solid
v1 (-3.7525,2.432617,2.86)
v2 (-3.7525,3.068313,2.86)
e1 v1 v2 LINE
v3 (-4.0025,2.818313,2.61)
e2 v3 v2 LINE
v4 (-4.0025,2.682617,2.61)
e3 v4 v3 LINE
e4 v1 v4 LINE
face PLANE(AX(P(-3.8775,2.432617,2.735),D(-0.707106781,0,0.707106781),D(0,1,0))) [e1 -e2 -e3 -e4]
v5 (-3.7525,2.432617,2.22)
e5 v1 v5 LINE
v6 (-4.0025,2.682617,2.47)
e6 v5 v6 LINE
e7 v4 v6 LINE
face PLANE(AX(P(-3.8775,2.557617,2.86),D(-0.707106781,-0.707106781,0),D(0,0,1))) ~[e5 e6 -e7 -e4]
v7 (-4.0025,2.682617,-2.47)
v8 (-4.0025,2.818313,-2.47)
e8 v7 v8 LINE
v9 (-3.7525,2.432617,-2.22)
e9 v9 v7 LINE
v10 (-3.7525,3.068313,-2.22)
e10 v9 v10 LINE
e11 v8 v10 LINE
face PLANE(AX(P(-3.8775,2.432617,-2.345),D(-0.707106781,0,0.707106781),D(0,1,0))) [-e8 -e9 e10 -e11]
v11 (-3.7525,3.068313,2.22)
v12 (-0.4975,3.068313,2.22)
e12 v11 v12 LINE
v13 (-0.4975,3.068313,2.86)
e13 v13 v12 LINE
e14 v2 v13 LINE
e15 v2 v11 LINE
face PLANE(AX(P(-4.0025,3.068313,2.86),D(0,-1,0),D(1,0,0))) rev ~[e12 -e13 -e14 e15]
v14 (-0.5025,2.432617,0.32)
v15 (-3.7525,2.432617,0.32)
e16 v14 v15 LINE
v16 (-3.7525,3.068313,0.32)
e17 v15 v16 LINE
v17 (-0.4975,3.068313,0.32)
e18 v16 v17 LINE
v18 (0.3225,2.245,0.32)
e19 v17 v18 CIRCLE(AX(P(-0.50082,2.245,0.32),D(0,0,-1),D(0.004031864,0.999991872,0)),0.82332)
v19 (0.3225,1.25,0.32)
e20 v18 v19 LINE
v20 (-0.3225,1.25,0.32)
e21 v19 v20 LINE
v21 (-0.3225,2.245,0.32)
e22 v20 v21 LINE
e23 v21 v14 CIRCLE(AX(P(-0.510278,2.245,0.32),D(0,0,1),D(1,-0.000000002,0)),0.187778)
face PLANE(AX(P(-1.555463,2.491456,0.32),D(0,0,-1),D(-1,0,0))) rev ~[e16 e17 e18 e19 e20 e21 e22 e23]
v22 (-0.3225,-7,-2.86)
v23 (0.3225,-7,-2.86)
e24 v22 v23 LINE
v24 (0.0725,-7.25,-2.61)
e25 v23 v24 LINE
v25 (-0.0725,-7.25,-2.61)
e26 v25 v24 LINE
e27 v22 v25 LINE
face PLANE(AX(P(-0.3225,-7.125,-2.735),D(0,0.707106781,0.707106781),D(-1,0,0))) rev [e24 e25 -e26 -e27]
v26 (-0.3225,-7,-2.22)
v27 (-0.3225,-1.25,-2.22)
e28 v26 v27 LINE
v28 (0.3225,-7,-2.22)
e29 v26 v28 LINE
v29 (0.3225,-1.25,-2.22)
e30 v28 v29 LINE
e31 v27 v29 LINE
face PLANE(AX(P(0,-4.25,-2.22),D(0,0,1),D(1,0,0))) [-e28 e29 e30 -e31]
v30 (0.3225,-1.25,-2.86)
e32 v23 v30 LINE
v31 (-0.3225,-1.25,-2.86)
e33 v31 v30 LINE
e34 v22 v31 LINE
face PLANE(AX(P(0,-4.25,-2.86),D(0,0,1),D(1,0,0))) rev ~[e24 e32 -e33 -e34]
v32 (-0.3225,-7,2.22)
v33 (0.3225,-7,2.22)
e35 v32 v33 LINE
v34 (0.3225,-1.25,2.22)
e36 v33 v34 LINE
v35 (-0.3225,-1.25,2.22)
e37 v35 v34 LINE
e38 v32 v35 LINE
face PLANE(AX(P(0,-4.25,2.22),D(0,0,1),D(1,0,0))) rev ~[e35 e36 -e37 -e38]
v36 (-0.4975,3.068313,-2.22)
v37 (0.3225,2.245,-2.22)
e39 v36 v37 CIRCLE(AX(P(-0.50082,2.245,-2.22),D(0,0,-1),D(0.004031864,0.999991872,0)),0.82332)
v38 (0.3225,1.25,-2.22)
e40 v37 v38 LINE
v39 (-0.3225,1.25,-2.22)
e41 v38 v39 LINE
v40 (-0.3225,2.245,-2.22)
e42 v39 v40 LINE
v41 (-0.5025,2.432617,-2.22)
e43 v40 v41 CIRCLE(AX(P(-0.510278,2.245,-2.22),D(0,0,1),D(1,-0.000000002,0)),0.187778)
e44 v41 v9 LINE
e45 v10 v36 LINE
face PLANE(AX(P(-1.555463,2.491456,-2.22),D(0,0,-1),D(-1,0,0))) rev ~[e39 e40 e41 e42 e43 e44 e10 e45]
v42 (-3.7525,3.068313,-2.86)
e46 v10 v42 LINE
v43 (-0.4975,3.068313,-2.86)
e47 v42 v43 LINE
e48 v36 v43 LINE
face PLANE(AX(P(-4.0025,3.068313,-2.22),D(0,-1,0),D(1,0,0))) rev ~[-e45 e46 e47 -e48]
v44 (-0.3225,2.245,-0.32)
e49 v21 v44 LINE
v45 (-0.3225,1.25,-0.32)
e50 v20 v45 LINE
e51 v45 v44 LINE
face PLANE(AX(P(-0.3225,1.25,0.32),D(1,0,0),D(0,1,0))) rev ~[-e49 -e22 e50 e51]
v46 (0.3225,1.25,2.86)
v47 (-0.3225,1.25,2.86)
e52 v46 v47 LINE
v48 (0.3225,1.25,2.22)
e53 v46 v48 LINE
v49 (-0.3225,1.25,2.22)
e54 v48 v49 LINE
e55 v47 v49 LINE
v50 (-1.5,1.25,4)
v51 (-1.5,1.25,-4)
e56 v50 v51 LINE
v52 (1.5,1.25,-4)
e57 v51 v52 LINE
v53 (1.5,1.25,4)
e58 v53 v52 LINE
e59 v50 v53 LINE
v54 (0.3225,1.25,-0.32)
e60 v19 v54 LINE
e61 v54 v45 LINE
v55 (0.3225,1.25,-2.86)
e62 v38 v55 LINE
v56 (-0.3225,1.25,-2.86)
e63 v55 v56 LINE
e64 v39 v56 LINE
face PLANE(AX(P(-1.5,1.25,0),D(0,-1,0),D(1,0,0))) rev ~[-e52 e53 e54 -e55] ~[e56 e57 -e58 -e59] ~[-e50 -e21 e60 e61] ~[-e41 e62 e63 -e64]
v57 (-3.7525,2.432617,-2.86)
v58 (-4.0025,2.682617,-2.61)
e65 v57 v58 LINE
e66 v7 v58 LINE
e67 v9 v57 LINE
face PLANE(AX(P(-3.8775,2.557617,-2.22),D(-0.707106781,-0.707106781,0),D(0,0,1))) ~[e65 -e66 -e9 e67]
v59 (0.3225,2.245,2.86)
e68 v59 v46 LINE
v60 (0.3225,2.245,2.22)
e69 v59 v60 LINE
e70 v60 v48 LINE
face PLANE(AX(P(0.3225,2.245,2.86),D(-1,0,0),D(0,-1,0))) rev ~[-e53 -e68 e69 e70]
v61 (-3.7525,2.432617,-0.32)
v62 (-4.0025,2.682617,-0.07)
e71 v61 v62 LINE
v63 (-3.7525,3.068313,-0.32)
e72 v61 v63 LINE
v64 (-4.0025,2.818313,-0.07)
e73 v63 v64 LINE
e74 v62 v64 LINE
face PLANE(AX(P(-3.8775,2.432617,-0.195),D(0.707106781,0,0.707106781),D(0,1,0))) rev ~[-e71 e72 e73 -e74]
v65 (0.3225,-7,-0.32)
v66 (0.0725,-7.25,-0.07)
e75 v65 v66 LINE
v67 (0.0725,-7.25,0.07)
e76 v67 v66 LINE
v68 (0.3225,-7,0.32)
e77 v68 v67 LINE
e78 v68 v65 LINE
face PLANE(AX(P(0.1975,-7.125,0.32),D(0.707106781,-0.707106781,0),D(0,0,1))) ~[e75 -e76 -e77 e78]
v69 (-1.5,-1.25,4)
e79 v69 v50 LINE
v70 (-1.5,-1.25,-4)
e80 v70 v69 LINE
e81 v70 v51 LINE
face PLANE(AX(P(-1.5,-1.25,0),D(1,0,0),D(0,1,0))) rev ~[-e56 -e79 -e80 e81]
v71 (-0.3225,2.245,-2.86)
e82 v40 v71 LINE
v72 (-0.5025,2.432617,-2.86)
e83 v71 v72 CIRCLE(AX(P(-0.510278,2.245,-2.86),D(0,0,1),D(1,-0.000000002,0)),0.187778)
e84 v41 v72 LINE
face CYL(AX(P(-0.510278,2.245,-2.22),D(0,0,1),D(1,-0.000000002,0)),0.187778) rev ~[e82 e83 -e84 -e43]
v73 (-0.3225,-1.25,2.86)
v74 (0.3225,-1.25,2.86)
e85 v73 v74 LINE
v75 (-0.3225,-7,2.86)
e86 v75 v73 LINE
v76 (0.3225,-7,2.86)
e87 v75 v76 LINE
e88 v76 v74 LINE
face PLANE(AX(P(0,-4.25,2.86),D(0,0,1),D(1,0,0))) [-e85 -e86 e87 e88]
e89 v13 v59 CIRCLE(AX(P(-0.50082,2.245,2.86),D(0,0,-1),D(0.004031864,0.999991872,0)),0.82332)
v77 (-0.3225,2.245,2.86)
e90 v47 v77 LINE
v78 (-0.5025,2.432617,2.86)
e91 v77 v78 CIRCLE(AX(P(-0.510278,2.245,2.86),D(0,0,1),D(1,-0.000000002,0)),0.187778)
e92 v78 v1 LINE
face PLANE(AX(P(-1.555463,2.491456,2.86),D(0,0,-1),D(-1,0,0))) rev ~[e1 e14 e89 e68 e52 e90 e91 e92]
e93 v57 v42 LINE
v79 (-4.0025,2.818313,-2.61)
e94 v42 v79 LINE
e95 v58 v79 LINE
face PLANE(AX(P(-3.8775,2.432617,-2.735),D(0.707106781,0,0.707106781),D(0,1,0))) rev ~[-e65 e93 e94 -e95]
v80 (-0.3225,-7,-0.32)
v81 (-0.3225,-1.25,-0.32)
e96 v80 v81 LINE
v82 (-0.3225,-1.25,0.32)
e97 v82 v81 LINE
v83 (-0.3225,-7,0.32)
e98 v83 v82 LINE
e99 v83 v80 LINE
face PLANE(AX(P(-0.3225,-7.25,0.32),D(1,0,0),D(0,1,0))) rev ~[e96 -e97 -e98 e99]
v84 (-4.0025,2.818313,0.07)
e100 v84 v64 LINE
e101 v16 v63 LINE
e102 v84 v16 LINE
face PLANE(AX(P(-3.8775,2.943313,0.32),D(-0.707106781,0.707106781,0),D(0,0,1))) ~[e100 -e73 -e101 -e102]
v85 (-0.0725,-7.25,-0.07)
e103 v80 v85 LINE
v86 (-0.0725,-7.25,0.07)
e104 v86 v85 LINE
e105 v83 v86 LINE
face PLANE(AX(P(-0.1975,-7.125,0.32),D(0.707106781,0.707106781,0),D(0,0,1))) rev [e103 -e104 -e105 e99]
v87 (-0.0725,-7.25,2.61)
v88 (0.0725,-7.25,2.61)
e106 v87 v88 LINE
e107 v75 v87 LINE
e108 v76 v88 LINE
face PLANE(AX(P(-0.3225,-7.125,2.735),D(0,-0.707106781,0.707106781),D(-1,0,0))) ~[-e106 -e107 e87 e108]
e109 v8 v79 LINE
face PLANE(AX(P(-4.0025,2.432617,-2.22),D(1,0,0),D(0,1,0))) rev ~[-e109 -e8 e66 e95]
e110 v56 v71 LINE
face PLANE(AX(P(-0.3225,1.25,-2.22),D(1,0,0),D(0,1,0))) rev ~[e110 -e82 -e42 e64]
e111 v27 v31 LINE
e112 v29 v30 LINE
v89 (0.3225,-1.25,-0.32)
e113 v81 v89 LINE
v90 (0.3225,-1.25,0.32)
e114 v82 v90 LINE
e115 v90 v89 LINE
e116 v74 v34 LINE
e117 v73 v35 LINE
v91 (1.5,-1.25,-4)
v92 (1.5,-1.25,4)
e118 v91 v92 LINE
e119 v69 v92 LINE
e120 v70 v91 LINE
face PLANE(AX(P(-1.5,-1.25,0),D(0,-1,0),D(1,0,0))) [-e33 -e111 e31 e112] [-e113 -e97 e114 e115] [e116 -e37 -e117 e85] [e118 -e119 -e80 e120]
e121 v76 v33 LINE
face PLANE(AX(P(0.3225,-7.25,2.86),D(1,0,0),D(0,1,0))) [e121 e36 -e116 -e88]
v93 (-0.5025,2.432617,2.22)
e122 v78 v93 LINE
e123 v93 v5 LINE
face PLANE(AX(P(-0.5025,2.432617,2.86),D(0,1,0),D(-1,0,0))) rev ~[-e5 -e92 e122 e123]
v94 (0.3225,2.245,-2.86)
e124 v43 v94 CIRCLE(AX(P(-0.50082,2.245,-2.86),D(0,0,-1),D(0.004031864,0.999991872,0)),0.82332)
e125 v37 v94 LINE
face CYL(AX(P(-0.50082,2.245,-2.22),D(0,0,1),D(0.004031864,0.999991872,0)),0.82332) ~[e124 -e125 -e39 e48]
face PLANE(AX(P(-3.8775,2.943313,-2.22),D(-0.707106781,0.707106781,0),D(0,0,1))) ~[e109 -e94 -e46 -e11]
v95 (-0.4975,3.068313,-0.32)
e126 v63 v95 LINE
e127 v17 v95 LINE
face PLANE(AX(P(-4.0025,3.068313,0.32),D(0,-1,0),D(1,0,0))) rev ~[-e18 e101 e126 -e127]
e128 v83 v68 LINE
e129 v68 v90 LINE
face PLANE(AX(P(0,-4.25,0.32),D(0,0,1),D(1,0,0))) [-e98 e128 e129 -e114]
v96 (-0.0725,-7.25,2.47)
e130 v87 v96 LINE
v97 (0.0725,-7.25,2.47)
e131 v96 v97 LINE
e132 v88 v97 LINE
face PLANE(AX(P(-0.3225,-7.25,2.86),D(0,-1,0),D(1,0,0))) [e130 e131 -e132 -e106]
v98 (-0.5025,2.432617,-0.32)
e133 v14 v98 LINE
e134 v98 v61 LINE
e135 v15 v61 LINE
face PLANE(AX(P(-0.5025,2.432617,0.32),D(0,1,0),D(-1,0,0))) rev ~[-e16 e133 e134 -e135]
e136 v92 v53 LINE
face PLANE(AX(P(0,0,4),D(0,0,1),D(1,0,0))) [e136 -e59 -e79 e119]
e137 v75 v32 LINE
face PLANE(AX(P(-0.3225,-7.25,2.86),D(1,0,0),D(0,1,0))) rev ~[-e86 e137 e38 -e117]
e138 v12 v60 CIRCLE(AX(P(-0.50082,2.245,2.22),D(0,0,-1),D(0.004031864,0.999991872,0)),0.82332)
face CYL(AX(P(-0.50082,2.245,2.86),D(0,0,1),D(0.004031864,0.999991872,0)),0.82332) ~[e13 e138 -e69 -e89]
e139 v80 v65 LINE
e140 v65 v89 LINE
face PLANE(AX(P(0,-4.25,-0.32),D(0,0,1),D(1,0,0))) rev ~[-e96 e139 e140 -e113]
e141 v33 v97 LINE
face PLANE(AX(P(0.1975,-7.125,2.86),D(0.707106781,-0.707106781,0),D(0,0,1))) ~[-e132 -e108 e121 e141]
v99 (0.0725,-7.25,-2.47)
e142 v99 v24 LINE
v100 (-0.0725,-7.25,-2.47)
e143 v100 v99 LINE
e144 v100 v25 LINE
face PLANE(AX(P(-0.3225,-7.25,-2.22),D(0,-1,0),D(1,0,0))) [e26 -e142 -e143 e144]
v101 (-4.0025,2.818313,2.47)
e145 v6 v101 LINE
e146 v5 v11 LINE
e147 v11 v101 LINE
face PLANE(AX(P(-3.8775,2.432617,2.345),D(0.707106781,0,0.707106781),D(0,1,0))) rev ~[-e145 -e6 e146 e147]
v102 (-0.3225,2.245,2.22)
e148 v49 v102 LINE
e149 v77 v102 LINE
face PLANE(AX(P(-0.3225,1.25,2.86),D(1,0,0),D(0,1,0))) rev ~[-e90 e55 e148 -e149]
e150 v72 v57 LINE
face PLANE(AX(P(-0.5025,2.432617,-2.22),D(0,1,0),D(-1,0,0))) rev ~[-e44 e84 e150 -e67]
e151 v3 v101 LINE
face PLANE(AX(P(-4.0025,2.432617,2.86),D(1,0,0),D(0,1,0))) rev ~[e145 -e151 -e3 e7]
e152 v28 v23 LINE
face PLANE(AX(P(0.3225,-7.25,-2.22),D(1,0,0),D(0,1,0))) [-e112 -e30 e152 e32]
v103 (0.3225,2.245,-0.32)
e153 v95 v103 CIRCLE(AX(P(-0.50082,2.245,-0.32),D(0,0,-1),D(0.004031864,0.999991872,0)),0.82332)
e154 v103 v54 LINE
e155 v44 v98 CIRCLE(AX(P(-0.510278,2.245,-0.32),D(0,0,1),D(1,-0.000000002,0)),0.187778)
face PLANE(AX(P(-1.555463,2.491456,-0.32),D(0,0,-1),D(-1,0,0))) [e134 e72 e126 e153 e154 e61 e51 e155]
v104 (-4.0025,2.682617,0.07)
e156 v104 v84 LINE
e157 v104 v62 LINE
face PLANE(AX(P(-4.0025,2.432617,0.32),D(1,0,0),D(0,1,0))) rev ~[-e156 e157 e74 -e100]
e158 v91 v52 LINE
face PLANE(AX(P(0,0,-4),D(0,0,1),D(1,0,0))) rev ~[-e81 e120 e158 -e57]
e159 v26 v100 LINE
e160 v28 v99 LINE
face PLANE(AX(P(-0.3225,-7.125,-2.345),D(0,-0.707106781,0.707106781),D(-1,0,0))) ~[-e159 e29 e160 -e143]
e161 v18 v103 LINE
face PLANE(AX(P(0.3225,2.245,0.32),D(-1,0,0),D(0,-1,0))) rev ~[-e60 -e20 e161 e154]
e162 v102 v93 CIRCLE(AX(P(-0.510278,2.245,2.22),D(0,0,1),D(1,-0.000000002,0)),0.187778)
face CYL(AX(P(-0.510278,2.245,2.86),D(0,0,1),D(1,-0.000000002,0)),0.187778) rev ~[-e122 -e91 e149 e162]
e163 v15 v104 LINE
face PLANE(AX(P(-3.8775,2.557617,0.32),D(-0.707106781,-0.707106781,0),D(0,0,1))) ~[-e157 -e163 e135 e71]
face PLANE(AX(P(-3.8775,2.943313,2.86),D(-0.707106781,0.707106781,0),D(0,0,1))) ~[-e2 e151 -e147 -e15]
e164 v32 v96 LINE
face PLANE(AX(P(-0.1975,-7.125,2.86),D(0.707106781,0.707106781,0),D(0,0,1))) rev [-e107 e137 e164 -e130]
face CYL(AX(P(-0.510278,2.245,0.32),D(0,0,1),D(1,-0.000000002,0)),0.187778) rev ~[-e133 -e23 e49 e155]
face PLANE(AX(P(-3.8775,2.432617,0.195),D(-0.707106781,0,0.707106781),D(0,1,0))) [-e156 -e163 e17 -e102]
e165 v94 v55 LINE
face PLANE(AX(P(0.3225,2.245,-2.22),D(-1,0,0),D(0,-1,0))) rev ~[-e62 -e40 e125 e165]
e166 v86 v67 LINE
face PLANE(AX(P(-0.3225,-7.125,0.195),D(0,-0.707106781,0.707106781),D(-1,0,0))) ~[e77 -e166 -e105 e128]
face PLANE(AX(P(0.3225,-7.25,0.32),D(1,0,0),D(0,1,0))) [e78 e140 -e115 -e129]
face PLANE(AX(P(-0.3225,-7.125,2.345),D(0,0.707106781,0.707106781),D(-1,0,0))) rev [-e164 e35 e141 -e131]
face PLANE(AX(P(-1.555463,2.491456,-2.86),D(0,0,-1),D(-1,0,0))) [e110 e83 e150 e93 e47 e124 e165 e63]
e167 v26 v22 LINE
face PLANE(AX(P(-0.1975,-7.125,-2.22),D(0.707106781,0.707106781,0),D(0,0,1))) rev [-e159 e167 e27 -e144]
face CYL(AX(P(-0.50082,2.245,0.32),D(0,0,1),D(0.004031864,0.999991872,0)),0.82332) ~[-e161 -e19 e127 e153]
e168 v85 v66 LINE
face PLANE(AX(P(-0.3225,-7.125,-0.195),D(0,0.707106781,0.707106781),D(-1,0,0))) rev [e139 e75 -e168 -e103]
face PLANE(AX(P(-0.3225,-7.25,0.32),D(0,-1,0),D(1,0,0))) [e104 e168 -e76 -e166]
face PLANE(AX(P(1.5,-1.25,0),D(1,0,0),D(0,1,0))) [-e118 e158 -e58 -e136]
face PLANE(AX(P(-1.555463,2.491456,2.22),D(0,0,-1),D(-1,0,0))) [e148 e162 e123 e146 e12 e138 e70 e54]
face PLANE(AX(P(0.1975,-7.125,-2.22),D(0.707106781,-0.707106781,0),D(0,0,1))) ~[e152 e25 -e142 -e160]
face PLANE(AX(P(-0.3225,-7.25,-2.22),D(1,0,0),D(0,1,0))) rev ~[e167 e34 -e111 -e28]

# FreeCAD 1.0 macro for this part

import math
import FreeCAD as App
import Part
import Sketcher
Q = App.Units.Quantity


def edges_at(feature, points):
    """Names of the edges that pass closest to the given points."""
    edges = feature.Shape.Edges
    near = lambda p: min(range(len(edges)), key=lambda i: edges[i].distToShape(Part.Vertex(*p))[0])
    return sorted({f"Edge{near(p) + 1}" for p in points})

doc = App.newDocument("Part")
body = doc.addObject("PartDesign::Body", "Body")

sketch1 = body.newObject("Sketcher::SketchObject", "Sketch")
sketch1.AttachmentSupport = (doc.getObject("XY_Plane"), [""])
sketch1.MapMode = "FlatFace"
sketch1.addGeometry(Part.LineSegment(App.Vector(-1.5, 1.25, 0), App.Vector(-1.5, -1.25, 0)), False)
sketch1.addGeometry(Part.LineSegment(App.Vector(-1.5, -1.25, 0), App.Vector(1.5, -1.25, 0)), False)
sketch1.addGeometry(Part.LineSegment(App.Vector(1.5, -1.25, 0), App.Vector(1.5, 1.25, 0)), False)
sketch1.addGeometry(Part.LineSegment(App.Vector(1.5, 1.25, 0), App.Vector(-1.5, 1.25, 0)), False)
sketch1.addConstraint(Sketcher.Constraint("Coincident", 0, 2, 1, 1))
sketch1.addConstraint(Sketcher.Constraint("Coincident", 1, 2, 2, 1))
sketch1.addConstraint(Sketcher.Constraint("Coincident", 2, 2, 3, 1))
sketch1.addConstraint(Sketcher.Constraint("Coincident", 3, 2, 0, 1))
sketch1.addConstraint(Sketcher.Constraint("Vertical", 0))
sketch1.addConstraint(Sketcher.Constraint("Horizontal", 1))
sketch1.addConstraint(Sketcher.Constraint("Vertical", 2))
sketch1.addConstraint(Sketcher.Constraint("Horizontal", 3))
sketch1.addConstraint(Sketcher.Constraint("Symmetric", 0, 2, 2, 2, -1, 1))
sketch1.addConstraint(Sketcher.Constraint("DistanceX", 1, 1, 1, 2, Q("3 mm")))
sketch1.addConstraint(Sketcher.Constraint("DistanceY", 0, 2, 0, 1, Q("2.5 mm")))
pad1 = body.newObject("PartDesign::Pad", "Pad")
pad1.Profile = sketch1
pad1.Length = 8
pad1.Midplane = True

sketch2 = body.newObject("Sketcher::SketchObject", "Sketch001")
sketch2.AttachmentSupport = (doc.getObject("XY_Plane"), [""])
sketch2.MapMode = "FlatFace"
sketch2.AttachmentOffset = App.Placement(App.Vector(0, 0, 2.86), App.Rotation())
sketch2.addGeometry(Part.LineSegment(App.Vector(-0.3225, 2.245, 0), App.Vector(-0.3225, 1.25, 0)), False)
sketch2.addGeometry(Part.LineSegment(App.Vector(-0.3225, 1.25, 0), App.Vector(0.3225, 1.25, 0)), False)
sketch2.addGeometry(Part.LineSegment(App.Vector(0.3225, 1.25, 0), App.Vector(0.3225, 2.245, 0)), False)
sketch2.addGeometry(Part.ArcOfCircle(Part.Circle(App.Vector(-0.50082, 2.245, 0), App.Vector(0, 0, 1), 0.82332), math.radians(0), math.radians(89.768991)), False)
sketch2.addGeometry(Part.LineSegment(App.Vector(-0.4975, 3.068313, 0), App.Vector(-4.0025, 3.068313, 0)), False)
sketch2.addGeometry(Part.LineSegment(App.Vector(-4.0025, 3.068313, 0), App.Vector(-4.0025, 2.432617, 0)), False)
sketch2.addGeometry(Part.LineSegment(App.Vector(-4.0025, 2.432617, 0), App.Vector(-0.5025, 2.432617, 0)), False)
sketch2.addGeometry(Part.ArcOfCircle(Part.Circle(App.Vector(-0.510278, 2.245, 0), App.Vector(0, 0, 1), 0.187778), math.radians(0), math.radians(87.626123)), False)
sketch2.addGeometry(Part.LineSegment(App.Vector(-0.3225, -1.25, 0), App.Vector(-0.3225, -7.25, 0)), False)
sketch2.addGeometry(Part.LineSegment(App.Vector(-0.3225, -7.25, 0), App.Vector(0.3225, -7.25, 0)), False)
sketch2.addGeometry(Part.LineSegment(App.Vector(0.3225, -7.25, 0), App.Vector(0.3225, -1.25, 0)), False)
sketch2.addGeometry(Part.LineSegment(App.Vector(0.3225, -1.25, 0), App.Vector(-0.3225, -1.25, 0)), False)
sketch2.addConstraint(Sketcher.Constraint("Coincident", 0, 2, 1, 1))
sketch2.addConstraint(Sketcher.Constraint("Coincident", 1, 2, 2, 1))
sketch2.addConstraint(Sketcher.Constraint("Tangent", 2, 2, 3, 1))
sketch2.addConstraint(Sketcher.Constraint("Coincident", 3, 2, 4, 1))
sketch2.addConstraint(Sketcher.Constraint("Coincident", 4, 2, 5, 1))
sketch2.addConstraint(Sketcher.Constraint("Coincident", 5, 2, 6, 1))
sketch2.addConstraint(Sketcher.Constraint("Coincident", 6, 2, 7, 2))
sketch2.addConstraint(Sketcher.Constraint("Tangent", 7, 1, 0, 1))
sketch2.addConstraint(Sketcher.Constraint("Coincident", 8, 2, 9, 1))
sketch2.addConstraint(Sketcher.Constraint("Coincident", 9, 2, 10, 1))
sketch2.addConstraint(Sketcher.Constraint("Coincident", 10, 2, 11, 1))
sketch2.addConstraint(Sketcher.Constraint("Coincident", 11, 2, 8, 1))
sketch2.addConstraint(Sketcher.Constraint("Vertical", 0))
sketch2.addConstraint(Sketcher.Constraint("Horizontal", 1))
sketch2.addConstraint(Sketcher.Constraint("Vertical", 2))
sketch2.addConstraint(Sketcher.Constraint("Horizontal", 4))
sketch2.addConstraint(Sketcher.Constraint("Vertical", 5))
sketch2.addConstraint(Sketcher.Constraint("Horizontal", 6))
sketch2.addConstraint(Sketcher.Constraint("Vertical", 8))
sketch2.addConstraint(Sketcher.Constraint("Horizontal", 9))
sketch2.addConstraint(Sketcher.Constraint("Vertical", 10))
sketch2.addConstraint(Sketcher.Constraint("Horizontal", 11))
sketch2.addConstraint(Sketcher.Constraint("Symmetric", 0, 2, 10, 2, -1, 1))
sketch2.addConstraint(Sketcher.Constraint("Symmetric", 2, 2, 7, 1, -2))
sketch2.addConstraint(Sketcher.Constraint("Vertical", 7, 1, 8, 2))
sketch2.addConstraint(Sketcher.Constraint("DistanceY", 8, 2, 8, 1, Q("6 mm")))
sketch2.addConstraint(Sketcher.Constraint("DistanceX", 6, 1, 6, 2, Q("3.5 mm")))
sketch2.addConstraint(Sketcher.Constraint("DistanceY", 8, 2, 0, 2, Q("8.5 mm")))
sketch2.addConstraint(Sketcher.Constraint("DistanceX", 1, 1, 1, 2, Q("0.645 mm")))
sketch2.addConstraint(Sketcher.Constraint("DistanceX", 4, 2, 4, 1, Q("3.505 mm")))
sketch2.addConstraint(Sketcher.Constraint("DistanceY", 0, 2, 0, 1, Q("0.995 mm")))
sketch2.addConstraint(Sketcher.Constraint("Radius", 3, Q("0.82332 mm")))
sketch2.addConstraint(Sketcher.Constraint("DistanceX", 3, 2, 2, 2, Q("0.82 mm")))
sketch2.addConstraint(Sketcher.Constraint("Radius", 7, Q("0.187778 mm")))
pad2 = body.newObject("PartDesign::Pad", "Pad001")
pad2.Profile = sketch2
pad2.Length = 0.64
pad2.Reversed = True
doc.recompute()

linearpattern = body.newObject("PartDesign::LinearPattern", "LinearPattern")
linearpattern.Originals = [pad2]
linearpattern.Direction = (doc.getObject("Z_Axis"), [""])
linearpattern.Mode = "offset"
linearpattern.Offset = 2.54
linearpattern.Occurrences = 3
linearpattern.Reversed = True
body.Tip = linearpattern
doc.recompute()

chamfer = body.newObject("PartDesign::Chamfer", "Chamfer")
chamfer.Base = (linearpattern, edges_at(linearpattern, [
    (-4.003, 2.75, 2.22),
    (-4.003, 2.433, 2.54),
    (-4.003, 3.068, 2.54),
    (-4.003, 2.75, 2.86),
    (0, -7.25, 2.22),
    (0.323, -7.25, 2.54),
    (-0.323, -7.25, 2.54),
    (0, -7.25, 2.86),
    (-4.003, 2.75, -0.32),
    (-4.003, 2.433, 0),
    (-4.003, 3.068, 0),
    (-4.003, 2.75, 0.32),
    (0, -7.25, -0.32),
    (0.323, -7.25, 0),
    (-0.323, -7.25, 0),
    (0, -7.25, 0.32),
    (-4.003, 2.75, -2.86),
    (-4.003, 2.433, -2.54),
    (-4.003, 3.068, -2.54),
    (-4.003, 2.75, -2.22),
    (0, -7.25, -2.86),
    (0.323, -7.25, -2.54),
    (-0.323, -7.25, -2.54),
    (0, -7.25, -2.22),
]))
chamfer.Size = 0.25

doc.recompute()
